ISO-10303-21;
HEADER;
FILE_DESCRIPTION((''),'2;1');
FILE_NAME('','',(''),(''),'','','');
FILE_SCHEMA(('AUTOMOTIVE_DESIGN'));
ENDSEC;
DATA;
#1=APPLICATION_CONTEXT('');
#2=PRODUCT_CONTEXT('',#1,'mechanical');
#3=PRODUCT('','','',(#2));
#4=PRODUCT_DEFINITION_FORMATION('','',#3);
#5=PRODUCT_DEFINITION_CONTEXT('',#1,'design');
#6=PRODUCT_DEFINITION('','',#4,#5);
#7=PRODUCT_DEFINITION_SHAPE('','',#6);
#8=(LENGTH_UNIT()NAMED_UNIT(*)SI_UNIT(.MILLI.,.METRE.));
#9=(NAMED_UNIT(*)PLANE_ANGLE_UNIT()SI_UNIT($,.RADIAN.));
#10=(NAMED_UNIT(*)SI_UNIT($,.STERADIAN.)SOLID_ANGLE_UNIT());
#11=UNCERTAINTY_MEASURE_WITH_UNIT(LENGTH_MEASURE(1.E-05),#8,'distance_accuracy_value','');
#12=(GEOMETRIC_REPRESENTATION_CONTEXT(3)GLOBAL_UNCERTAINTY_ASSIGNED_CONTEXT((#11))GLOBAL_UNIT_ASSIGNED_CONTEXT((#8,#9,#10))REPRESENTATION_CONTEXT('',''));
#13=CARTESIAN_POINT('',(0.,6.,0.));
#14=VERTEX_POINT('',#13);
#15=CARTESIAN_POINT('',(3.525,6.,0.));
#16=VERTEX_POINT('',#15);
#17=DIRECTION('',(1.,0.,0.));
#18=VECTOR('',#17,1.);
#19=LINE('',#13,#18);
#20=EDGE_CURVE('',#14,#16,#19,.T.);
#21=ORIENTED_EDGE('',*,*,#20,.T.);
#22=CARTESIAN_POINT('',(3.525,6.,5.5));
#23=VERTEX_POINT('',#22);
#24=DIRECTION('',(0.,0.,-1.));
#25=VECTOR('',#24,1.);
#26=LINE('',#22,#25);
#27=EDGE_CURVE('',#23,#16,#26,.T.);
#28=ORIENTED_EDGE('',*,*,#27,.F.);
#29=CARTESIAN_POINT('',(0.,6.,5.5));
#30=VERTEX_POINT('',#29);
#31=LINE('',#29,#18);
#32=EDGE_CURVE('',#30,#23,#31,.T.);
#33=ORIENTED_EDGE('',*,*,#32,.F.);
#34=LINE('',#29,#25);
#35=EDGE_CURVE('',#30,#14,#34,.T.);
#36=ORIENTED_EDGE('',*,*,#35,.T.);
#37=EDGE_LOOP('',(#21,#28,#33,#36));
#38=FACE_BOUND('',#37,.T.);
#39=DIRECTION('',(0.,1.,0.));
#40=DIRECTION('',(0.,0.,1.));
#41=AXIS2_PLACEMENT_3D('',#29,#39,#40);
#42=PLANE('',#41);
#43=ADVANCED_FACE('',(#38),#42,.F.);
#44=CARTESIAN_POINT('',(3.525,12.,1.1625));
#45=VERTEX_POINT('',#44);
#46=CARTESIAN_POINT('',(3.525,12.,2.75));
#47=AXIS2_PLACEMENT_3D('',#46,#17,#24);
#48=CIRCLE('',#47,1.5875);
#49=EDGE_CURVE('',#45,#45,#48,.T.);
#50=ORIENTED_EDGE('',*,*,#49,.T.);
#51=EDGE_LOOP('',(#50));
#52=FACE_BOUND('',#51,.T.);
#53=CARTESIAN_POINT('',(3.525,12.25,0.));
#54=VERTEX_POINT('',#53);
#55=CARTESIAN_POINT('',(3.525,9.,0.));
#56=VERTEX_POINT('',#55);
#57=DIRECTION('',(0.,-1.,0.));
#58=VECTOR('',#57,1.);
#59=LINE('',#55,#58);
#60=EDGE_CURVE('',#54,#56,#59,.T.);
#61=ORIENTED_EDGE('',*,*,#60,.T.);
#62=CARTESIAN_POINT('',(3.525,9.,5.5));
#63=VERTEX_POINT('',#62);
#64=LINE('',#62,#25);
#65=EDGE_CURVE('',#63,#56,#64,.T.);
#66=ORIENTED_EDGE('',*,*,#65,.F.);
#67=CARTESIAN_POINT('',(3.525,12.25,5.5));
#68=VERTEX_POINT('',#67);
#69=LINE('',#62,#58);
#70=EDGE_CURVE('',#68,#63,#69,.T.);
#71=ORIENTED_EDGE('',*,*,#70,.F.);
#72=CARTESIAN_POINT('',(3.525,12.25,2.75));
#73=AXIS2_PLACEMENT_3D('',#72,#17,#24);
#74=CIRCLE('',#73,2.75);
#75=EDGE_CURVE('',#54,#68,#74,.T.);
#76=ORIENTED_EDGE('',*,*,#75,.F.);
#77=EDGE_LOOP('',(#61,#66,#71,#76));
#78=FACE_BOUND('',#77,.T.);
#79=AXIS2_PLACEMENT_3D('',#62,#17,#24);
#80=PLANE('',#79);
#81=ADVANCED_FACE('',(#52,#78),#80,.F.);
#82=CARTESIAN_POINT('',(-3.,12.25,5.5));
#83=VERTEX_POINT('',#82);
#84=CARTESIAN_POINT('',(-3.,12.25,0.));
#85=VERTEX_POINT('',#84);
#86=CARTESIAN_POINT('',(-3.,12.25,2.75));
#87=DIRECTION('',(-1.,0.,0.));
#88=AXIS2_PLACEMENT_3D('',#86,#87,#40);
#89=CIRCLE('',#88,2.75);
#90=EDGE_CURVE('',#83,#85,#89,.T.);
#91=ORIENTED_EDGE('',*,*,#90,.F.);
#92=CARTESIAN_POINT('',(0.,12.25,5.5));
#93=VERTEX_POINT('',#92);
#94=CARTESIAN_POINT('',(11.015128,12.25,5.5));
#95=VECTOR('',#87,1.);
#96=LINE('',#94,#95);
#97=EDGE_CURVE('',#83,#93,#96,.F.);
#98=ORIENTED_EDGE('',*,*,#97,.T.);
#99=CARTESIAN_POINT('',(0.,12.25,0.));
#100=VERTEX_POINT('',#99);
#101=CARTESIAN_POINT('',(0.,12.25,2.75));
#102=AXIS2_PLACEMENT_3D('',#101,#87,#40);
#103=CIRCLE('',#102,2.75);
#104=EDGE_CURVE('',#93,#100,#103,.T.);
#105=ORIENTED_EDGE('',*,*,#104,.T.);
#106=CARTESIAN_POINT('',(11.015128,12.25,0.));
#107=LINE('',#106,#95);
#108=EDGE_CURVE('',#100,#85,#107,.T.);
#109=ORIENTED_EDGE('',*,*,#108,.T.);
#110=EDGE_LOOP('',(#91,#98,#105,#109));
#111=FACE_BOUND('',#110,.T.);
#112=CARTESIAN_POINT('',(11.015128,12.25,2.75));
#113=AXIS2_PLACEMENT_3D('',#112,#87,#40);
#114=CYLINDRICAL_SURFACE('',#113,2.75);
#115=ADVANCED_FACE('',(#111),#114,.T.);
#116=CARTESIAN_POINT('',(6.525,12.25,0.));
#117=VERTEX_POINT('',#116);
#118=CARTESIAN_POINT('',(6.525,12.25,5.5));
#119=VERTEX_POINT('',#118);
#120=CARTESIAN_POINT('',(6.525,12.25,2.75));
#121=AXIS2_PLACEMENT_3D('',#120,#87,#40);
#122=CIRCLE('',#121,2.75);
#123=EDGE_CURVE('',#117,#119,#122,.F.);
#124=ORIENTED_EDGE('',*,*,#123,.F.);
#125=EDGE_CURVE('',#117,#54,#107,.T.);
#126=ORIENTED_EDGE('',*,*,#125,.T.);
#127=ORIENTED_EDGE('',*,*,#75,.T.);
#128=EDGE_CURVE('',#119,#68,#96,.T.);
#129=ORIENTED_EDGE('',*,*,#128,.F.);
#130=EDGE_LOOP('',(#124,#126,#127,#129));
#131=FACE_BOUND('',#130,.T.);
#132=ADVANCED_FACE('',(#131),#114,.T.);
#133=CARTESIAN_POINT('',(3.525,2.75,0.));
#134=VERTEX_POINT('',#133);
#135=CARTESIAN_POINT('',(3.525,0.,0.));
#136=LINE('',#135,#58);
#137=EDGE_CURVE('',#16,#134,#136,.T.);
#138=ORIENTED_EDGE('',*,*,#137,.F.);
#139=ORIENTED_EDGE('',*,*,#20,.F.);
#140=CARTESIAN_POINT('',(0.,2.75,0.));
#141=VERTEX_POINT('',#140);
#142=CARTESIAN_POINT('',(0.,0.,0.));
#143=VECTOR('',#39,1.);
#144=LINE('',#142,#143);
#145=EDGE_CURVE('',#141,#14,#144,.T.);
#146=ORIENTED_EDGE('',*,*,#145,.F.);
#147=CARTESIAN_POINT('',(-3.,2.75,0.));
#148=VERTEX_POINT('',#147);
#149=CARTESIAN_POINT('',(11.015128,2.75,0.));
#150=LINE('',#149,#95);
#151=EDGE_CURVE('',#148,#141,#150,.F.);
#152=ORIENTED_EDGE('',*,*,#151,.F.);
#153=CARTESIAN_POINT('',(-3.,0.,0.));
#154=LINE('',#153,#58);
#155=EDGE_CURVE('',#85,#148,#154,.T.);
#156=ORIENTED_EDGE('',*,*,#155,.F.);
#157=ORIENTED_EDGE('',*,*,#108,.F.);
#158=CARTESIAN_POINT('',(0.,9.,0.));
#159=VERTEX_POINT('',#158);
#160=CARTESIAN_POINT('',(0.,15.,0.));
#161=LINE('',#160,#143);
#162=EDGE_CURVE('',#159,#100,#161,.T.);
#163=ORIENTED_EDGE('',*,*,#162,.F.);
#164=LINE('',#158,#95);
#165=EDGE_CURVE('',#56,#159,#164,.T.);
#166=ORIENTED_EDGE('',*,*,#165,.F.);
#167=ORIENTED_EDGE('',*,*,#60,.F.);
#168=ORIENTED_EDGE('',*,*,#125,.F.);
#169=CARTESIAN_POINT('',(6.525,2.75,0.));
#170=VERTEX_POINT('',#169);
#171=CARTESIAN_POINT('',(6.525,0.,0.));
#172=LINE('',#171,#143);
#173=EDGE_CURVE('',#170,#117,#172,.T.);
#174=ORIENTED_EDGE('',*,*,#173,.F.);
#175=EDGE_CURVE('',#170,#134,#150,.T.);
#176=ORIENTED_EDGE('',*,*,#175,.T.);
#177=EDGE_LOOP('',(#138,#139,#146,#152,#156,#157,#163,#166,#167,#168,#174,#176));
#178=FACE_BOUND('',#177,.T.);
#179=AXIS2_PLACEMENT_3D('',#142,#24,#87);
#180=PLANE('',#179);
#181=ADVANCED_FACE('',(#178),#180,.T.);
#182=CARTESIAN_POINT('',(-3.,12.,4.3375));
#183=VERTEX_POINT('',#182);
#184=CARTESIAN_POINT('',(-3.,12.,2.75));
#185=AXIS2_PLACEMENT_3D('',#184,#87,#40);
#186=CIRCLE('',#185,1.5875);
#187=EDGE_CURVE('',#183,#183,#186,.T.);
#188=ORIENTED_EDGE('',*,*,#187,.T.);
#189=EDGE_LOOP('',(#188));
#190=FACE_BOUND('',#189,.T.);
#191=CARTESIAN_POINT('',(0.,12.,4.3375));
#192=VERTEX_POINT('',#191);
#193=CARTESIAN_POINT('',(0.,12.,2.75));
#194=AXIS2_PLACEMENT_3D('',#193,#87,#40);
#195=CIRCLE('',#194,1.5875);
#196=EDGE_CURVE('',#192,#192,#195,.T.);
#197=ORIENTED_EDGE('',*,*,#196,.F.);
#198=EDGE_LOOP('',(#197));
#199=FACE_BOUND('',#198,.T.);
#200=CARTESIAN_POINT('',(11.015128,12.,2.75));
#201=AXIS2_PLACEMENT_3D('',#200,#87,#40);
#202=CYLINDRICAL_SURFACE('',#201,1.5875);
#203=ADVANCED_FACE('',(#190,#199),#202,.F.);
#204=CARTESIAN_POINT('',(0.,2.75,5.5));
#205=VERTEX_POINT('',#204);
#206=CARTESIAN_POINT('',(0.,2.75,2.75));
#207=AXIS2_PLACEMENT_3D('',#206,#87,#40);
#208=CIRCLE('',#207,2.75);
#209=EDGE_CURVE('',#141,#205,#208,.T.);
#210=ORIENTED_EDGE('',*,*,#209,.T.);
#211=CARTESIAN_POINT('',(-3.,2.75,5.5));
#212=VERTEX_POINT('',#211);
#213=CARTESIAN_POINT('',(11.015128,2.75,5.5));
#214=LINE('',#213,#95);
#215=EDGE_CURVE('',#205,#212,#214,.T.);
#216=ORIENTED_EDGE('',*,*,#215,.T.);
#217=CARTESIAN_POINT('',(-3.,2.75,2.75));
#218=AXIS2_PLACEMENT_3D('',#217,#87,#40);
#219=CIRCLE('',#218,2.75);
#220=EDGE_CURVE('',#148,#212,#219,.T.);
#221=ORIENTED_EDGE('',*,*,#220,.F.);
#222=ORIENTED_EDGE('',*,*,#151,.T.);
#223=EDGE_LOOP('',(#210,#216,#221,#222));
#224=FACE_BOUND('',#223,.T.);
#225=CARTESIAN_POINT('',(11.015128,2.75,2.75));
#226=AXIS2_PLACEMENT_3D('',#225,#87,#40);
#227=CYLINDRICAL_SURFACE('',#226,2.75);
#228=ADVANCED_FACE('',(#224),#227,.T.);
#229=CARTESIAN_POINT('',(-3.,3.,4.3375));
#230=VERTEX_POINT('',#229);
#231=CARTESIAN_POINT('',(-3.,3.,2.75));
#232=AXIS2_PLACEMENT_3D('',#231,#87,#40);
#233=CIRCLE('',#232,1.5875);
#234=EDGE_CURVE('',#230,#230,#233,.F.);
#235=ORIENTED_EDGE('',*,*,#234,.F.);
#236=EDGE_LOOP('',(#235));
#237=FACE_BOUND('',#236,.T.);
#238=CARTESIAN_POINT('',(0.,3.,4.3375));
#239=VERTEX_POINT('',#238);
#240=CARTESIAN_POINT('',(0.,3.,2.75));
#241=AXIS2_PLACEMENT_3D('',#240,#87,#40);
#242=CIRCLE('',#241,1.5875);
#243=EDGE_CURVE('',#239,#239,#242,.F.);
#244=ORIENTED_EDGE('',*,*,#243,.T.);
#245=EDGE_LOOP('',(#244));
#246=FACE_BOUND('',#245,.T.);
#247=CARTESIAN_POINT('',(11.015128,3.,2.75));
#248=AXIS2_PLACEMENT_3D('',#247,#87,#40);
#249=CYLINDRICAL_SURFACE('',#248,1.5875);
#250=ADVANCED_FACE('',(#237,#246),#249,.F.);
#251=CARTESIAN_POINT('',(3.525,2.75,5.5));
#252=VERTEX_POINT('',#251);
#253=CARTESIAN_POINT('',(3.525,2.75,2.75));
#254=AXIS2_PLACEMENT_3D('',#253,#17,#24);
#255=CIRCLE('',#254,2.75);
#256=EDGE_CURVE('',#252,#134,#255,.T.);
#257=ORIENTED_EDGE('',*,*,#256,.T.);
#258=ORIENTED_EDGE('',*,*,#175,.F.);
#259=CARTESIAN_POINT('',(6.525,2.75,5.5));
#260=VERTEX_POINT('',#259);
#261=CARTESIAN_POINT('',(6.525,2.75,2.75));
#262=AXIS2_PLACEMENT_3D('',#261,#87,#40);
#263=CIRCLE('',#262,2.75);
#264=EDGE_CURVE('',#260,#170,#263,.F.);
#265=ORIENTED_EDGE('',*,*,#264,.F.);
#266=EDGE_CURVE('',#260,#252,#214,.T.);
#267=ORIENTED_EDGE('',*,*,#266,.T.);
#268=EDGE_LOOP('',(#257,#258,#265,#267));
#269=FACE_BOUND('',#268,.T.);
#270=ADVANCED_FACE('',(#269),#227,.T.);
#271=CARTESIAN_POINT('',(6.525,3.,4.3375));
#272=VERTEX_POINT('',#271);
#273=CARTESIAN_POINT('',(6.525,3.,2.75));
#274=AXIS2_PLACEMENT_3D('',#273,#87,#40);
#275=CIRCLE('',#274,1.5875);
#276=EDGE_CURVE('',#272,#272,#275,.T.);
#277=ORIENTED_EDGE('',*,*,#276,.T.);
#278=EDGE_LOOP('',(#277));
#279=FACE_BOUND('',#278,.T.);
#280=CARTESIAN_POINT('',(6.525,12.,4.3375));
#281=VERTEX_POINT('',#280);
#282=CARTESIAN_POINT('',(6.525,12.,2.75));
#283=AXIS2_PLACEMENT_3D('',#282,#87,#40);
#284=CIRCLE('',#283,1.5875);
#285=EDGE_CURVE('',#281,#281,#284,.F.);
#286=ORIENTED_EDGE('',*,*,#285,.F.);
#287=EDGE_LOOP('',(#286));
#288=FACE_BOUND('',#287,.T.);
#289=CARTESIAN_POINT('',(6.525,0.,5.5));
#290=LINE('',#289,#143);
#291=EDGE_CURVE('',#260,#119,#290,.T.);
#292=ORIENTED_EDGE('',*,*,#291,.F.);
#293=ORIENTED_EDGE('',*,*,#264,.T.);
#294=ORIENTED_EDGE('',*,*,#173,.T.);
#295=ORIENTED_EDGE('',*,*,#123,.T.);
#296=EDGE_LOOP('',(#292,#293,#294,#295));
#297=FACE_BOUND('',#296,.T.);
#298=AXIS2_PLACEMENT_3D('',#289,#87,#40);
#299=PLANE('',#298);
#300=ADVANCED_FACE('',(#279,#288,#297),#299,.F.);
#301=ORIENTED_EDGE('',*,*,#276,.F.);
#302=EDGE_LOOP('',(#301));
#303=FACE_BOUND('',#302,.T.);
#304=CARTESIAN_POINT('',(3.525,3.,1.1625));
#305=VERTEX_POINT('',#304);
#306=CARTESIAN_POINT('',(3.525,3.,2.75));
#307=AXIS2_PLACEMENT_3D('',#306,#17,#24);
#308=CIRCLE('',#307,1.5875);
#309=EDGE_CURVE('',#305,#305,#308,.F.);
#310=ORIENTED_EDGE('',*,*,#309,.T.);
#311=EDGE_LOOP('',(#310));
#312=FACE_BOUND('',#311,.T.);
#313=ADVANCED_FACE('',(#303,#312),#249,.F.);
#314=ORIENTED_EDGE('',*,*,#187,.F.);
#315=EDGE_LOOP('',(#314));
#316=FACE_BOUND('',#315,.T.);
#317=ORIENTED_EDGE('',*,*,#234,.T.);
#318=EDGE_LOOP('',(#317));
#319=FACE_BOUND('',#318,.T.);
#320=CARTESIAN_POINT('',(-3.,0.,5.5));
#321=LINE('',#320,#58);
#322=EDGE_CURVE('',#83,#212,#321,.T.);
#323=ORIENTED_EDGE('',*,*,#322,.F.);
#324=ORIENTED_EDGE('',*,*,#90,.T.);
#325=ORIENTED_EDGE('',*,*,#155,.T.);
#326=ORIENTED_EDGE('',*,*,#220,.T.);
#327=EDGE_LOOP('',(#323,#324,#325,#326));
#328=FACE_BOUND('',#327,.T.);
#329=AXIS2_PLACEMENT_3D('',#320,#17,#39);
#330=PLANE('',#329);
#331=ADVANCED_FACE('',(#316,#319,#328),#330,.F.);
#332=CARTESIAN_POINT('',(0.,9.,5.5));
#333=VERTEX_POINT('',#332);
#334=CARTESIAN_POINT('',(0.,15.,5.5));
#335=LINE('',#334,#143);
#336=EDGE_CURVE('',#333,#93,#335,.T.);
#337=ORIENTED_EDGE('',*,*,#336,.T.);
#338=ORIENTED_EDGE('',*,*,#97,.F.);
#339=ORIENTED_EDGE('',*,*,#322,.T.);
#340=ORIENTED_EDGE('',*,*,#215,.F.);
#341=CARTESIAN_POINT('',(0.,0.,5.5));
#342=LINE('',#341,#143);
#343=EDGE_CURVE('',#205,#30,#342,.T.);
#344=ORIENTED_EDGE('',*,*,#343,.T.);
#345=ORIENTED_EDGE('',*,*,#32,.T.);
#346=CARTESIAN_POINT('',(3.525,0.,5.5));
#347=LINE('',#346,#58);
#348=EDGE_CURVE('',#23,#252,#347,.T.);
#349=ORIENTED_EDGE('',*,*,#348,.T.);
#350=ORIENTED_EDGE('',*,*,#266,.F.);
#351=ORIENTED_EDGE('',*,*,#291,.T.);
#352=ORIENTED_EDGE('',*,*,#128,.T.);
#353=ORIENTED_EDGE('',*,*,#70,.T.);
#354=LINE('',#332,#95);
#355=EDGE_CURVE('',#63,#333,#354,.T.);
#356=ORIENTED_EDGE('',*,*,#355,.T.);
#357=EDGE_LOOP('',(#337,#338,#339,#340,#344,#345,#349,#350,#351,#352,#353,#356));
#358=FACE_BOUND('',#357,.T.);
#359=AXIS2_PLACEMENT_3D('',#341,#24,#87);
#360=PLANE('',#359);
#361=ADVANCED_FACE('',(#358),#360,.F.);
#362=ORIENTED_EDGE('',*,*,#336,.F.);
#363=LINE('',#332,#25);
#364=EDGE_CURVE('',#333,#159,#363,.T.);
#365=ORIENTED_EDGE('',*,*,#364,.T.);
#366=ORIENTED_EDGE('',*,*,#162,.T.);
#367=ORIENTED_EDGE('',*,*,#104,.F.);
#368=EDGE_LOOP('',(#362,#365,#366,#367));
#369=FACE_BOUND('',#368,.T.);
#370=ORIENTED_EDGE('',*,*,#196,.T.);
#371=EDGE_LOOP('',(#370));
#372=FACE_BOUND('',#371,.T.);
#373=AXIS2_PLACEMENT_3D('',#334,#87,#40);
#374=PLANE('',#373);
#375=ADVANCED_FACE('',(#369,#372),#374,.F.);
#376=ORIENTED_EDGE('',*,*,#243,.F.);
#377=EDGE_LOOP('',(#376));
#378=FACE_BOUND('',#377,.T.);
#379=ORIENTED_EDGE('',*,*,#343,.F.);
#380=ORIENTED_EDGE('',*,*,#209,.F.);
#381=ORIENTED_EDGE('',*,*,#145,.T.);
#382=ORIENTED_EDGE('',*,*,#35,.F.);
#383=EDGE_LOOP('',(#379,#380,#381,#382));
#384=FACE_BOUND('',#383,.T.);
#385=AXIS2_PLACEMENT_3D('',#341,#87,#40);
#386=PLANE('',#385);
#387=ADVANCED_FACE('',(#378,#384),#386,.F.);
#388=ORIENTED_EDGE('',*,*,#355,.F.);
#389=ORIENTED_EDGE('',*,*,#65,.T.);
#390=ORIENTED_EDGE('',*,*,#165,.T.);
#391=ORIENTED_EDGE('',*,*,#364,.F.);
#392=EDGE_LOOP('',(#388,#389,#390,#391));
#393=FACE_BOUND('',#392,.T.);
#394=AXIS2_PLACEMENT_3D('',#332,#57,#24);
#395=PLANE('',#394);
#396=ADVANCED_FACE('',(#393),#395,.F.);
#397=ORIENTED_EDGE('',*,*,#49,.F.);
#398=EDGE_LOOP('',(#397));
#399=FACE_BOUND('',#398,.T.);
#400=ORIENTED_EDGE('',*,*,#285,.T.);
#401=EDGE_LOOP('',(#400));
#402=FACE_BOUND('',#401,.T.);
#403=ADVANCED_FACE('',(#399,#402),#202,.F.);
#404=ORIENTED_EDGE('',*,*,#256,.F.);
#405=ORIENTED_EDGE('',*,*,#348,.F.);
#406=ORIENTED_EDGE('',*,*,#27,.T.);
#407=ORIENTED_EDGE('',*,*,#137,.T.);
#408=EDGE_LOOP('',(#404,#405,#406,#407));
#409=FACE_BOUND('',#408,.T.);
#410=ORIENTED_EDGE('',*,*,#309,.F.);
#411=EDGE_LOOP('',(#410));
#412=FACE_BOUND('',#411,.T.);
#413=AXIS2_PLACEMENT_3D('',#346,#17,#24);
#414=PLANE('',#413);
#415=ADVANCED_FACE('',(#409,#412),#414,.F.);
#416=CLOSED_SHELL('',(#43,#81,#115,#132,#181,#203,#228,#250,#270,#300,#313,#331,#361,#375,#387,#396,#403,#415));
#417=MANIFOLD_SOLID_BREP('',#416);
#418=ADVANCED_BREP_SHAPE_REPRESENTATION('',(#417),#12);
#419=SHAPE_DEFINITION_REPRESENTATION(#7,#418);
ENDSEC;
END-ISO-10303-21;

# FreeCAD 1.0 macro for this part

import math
import FreeCAD as App
import Part
import Sketcher

doc = App.newDocument("Part")
body = doc.addObject("PartDesign::Body", "Body")

# Sketch on XY plane
sketch1 = doc.addObject("Sketcher::SketchObject", "Sketch")
body.addObject(sketch1)
sketch1.AttachmentSupport = (doc.XY_Plane, [""])
sketch1.MapMode = "FlatFace"
sketch1.addGeometry([
    Part.LineSegment(App.Vector(-3, 0, 0), App.Vector(0, 0, 0)),  # 0
    Part.LineSegment(App.Vector(0, 0, 0), App.Vector(0, 6, 0)),  # 1
    Part.LineSegment(App.Vector(0, 6, 0), App.Vector(3.525, 6, 0)),  # 2
    Part.LineSegment(App.Vector(3.525, 6, 0), App.Vector(3.525, 0, 0)),  # 3
    Part.LineSegment(App.Vector(3.525, 0, 0), App.Vector(6.525, 0, 0)),  # 4
    Part.LineSegment(App.Vector(6.525, 0, 0), App.Vector(6.525, 15, 0)),  # 5
    Part.LineSegment(App.Vector(6.525, 15, 0), App.Vector(3.525, 15, 0)),  # 6
    Part.LineSegment(App.Vector(3.525, 15, 0), App.Vector(3.525, 9, 0)),  # 7
    Part.LineSegment(App.Vector(3.525, 9, 0), App.Vector(0, 9, 0)),  # 8
    Part.LineSegment(App.Vector(0, 9, 0), App.Vector(0, 15, 0)),  # 9
    Part.LineSegment(App.Vector(0, 15, 0), App.Vector(-3, 15, 0)),  # 10
    Part.LineSegment(App.Vector(-3, 15, 0), App.Vector(-3, 0, 0)),  # 11
], False)
sketch1.addConstraint([
    Sketcher.Constraint("Coincident", 0, 2, 1, 1),
    Sketcher.Constraint("Coincident", 1, 2, 2, 1),
    Sketcher.Constraint("Coincident", 2, 2, 3, 1),
    Sketcher.Constraint("Coincident", 3, 2, 4, 1),
    Sketcher.Constraint("Coincident", 4, 2, 5, 1),
    Sketcher.Constraint("Coincident", 5, 2, 6, 1),
    Sketcher.Constraint("Coincident", 6, 2, 7, 1),
    Sketcher.Constraint("Coincident", 7, 2, 8, 1),
    Sketcher.Constraint("Coincident", 8, 2, 9, 1),
    Sketcher.Constraint("Coincident", 9, 2, 10, 1),
    Sketcher.Constraint("Coincident", 10, 2, 11, 1),
    Sketcher.Constraint("Coincident", 11, 2, 0, 1),
    Sketcher.Constraint("Horizontal", 0),
    Sketcher.Constraint("Vertical", 1),
    Sketcher.Constraint("Horizontal", 2),
    Sketcher.Constraint("Vertical", 3),
    Sketcher.Constraint("Horizontal", 4),
    Sketcher.Constraint("Vertical", 5),
    Sketcher.Constraint("Horizontal", 6),
    Sketcher.Constraint("Vertical", 7),
    Sketcher.Constraint("Horizontal", 8),
    Sketcher.Constraint("Vertical", 9),
    Sketcher.Constraint("Horizontal", 10),
    Sketcher.Constraint("Vertical", 11),
    Sketcher.Constraint("Coincident", 0, 2, -1, 1),
    Sketcher.Constraint("PointOnObject", 3, 2, -1),
    Sketcher.Constraint("PointOnObject", 8, 2, -2),
    Sketcher.Constraint("Horizontal", 6, 2, 9, 2),
    Sketcher.Constraint("Vertical", 3, 2, 6, 2),
    Sketcher.Constraint("Equal", 0, 4),
    Sketcher.Constraint("Equal", 3, 7),
    Sketcher.Constraint("DistanceX", 0, 1, 0, 2, 3.0),
    Sketcher.Constraint("DistanceY", 1, 1, 1, 2, 6.0),
    Sketcher.Constraint("DistanceY", 5, 1, 5, 2, 15.0),
    Sketcher.Constraint("DistanceX", 2, 1, 2, 2, 3.525),
])
pad1 = doc.addObject("PartDesign::Pad", "Pad")
body.addObject(pad1)
pad1.Profile = sketch1
pad1.Length = 5.5

# Sketch on YZ plane
sketch2 = doc.addObject("Sketcher::SketchObject", "Sketch001")
body.addObject(sketch2)
sketch2.AttachmentSupport = (doc.YZ_Plane, [""])
sketch2.MapMode = "FlatFace"
sketch2.AttachmentOffset = App.Placement(App.Vector(0, 0, -3), App.Rotation())
sketch2.addGeometry([
    Part.LineSegment(App.Vector(15, 5.5, 0), App.Vector(15, 2.75, 0)),  # 0
    Part.ArcOfCircle(Part.Circle(App.Vector(12.25, 2.75, 0), App.Vector(0, 0, 1), 2.75), math.radians(0), math.radians(90)),  # 1
    Part.LineSegment(App.Vector(12.25, 5.5, 0), App.Vector(15, 5.5, 0)),  # 2
    Part.LineSegment(App.Vector(15, 0, 0), App.Vector(12.25, 0, 0)),  # 3
    Part.ArcOfCircle(Part.Circle(App.Vector(12.25, 2.75, 0), App.Vector(0, 0, 1), 2.75), math.radians(-90), math.radians(0)),  # 4
    Part.LineSegment(App.Vector(15, 2.75, 0), App.Vector(15, 0, 0)),  # 5
    Part.Circle(App.Vector(12, 2.75, 0), App.Vector(0, 0, 1), 1.5875),  # 6
    Part.Circle(App.Vector(3, 2.75, 0), App.Vector(0, 0, 1), 1.5875),  # 7
    Part.ArcOfCircle(Part.Circle(App.Vector(2.75, 2.75, 0), App.Vector(0, 0, 1), 2.75), math.radians(-180), math.radians(-90)),  # 8
    Part.LineSegment(App.Vector(2.75, 0, 0), App.Vector(0, 0, 0)),  # 9
    Part.LineSegment(App.Vector(0, 0, 0), App.Vector(0, 2.75, 0)),  # 10
    Part.ArcOfCircle(Part.Circle(App.Vector(2.75, 2.75, 0), App.Vector(0, 0, 1), 2.75), math.radians(90), math.radians(180)),  # 11
    Part.LineSegment(App.Vector(0, 2.75, 0), App.Vector(0, 5.5, 0)),  # 12
    Part.LineSegment(App.Vector(0, 5.5, 0), App.Vector(2.75, 5.5, 0)),  # 13
], False)
sketch2.addConstraint([
    Sketcher.Constraint("Tangent", 0, 2, 1, 1),
    Sketcher.Constraint("Tangent", 1, 2, 2, 1),
    Sketcher.Constraint("Coincident", 2, 2, 0, 1),
    Sketcher.Constraint("Tangent", 3, 2, 4, 1),
    Sketcher.Constraint("Tangent", 4, 2, 5, 1),
    Sketcher.Constraint("Coincident", 5, 2, 3, 1),
    Sketcher.Constraint("Tangent", 8, 2, 9, 1),
    Sketcher.Constraint("Coincident", 9, 2, 10, 1),
    Sketcher.Constraint("Tangent", 10, 2, 8, 1),
    Sketcher.Constraint("Tangent", 11, 2, 12, 1),
    Sketcher.Constraint("Coincident", 12, 2, 13, 1),
    Sketcher.Constraint("Tangent", 13, 2, 11, 1),
    Sketcher.Constraint("Vertical", 0),
    Sketcher.Constraint("Horizontal", 2),
    Sketcher.Constraint("Horizontal", 3),
    Sketcher.Constraint("Vertical", 5),
    Sketcher.Constraint("Horizontal", 9),
    Sketcher.Constraint("Vertical", 10),
    Sketcher.Constraint("Vertical", 12),
    Sketcher.Constraint("Horizontal", 13),
    Sketcher.Constraint("Coincident", 9, 2, -1, 1),
    Sketcher.Constraint("Coincident", 4, 3, 1, 3),
    Sketcher.Constraint("Coincident", 11, 3, 8, 3),
    Sketcher.Constraint("Equal", 1, 4),
    Sketcher.Constraint("Equal", 6, 7),
    Sketcher.Constraint("Equal", 4, 8),
    Sketcher.Constraint("Equal", 8, 11),
    Sketcher.Constraint("PointOnObject", 3, 2, -1),
    Sketcher.Constraint("Horizontal", 4, 3, 6, 3),
    Sketcher.Constraint("Horizontal", 6, 3, 7, 3),
    Sketcher.Constraint("Radius", 1, 2.75),
    Sketcher.Constraint("Diameter", 6, 3.175),
    Sketcher.Constraint("DistanceX", -1, 1, 6, 3, 12.0),
    Sketcher.Constraint("DistanceX", -1, 1, 7, 3, 3.0),
    Sketcher.Constraint("DistanceX", -1, 1, 0, 2, 15.0),
])
pocket1 = doc.addObject("PartDesign::Pocket", "Pocket")
body.addObject(pocket1)
pocket1.Profile = sketch2
pocket1.Length = 9.525
pocket1.Reversed = True

doc.recompute()
